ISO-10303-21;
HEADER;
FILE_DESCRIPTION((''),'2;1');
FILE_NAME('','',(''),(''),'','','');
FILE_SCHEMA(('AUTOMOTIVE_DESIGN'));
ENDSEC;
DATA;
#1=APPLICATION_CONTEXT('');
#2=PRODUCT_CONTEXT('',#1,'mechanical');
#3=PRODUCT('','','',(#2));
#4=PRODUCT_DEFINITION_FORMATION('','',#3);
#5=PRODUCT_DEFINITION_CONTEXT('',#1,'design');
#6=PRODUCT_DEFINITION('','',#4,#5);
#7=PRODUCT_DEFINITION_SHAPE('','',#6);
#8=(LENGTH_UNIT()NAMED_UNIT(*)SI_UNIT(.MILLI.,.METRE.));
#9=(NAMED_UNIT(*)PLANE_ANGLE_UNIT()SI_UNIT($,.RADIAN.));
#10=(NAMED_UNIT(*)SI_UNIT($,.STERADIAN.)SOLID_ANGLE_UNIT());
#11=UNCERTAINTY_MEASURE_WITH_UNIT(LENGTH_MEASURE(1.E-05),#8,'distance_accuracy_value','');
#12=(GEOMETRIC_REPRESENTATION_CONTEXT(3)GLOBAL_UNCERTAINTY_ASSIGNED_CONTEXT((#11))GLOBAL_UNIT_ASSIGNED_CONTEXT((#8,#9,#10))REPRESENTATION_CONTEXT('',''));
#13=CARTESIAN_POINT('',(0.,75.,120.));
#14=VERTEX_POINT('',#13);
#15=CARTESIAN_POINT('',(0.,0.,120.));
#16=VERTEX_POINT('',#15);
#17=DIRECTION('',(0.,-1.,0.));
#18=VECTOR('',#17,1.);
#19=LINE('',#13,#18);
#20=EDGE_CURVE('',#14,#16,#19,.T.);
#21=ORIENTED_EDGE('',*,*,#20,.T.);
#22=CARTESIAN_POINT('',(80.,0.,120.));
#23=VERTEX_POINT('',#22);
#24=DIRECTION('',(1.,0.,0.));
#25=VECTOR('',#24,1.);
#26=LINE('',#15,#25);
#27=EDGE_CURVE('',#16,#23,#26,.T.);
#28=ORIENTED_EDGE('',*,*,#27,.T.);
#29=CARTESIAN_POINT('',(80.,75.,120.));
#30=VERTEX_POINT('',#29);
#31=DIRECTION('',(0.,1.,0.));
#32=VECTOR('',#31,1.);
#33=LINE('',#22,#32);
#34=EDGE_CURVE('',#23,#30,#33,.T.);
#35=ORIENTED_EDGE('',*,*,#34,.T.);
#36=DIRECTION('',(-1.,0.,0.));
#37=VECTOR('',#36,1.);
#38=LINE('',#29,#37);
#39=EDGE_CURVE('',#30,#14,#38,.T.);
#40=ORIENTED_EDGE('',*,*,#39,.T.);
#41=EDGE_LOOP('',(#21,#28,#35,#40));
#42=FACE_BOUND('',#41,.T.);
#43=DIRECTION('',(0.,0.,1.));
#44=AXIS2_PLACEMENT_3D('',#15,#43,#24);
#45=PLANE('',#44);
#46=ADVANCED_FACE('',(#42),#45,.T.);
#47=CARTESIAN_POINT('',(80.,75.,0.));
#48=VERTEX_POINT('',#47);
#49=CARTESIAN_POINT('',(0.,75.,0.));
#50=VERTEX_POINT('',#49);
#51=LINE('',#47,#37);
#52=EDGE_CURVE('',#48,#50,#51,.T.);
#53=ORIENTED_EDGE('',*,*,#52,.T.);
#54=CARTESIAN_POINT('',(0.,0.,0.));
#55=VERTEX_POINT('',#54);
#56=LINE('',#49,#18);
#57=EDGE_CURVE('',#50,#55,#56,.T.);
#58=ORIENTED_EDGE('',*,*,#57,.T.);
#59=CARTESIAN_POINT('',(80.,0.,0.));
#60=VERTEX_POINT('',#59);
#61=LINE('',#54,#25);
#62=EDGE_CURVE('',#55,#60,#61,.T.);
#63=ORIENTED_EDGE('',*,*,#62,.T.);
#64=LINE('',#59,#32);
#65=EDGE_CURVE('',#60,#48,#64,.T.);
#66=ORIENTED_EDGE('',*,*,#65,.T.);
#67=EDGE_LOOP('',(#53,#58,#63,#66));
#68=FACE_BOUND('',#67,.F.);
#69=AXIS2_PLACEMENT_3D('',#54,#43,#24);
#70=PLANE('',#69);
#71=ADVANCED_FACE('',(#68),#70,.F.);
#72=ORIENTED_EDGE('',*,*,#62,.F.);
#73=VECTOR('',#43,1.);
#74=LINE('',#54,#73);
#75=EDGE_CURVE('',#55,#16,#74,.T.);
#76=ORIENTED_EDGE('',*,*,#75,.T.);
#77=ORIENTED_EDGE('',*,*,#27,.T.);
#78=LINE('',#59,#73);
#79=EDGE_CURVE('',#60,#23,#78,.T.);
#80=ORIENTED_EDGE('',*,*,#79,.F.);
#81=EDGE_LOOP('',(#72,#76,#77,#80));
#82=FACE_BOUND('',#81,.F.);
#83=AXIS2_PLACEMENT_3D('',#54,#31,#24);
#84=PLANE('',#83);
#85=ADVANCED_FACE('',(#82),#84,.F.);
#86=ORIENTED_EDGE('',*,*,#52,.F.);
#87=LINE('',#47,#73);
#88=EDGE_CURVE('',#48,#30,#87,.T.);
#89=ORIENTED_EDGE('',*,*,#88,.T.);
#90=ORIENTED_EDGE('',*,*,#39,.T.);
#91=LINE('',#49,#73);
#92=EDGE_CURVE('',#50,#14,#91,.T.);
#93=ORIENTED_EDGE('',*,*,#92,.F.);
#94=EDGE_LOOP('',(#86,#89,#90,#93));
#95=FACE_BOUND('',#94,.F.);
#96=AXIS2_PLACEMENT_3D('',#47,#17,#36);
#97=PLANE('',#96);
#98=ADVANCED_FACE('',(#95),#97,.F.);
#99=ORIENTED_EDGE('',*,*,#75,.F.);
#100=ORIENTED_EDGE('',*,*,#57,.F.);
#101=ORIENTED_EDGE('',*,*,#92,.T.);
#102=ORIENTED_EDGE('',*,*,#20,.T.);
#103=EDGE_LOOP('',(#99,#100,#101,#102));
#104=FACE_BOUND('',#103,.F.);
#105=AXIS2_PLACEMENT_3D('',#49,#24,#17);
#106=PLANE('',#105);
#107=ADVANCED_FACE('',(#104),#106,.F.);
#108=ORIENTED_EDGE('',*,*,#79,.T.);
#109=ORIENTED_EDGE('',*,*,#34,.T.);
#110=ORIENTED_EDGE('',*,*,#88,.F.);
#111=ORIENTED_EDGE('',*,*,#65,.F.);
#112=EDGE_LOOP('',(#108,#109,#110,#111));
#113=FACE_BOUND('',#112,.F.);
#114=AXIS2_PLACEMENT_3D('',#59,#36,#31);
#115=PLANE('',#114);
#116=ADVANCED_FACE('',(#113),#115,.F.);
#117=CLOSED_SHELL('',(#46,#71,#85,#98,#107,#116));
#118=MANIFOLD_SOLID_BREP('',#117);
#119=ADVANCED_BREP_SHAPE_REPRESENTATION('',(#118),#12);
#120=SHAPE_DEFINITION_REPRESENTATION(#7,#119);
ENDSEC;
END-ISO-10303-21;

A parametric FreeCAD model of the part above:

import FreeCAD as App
import Part
import Sketcher

V = App.Vector

doc = App.newDocument("Part")
params = doc.addObject("Spreadsheet::Sheet", "Params")
for row, (alias, value) in enumerate([
    ("sketch1_width", "80 mm"),
    ("sketch1_height", "75 mm"),
    ("pad1_length", "120 mm"),
], start=1):
    params.set(f"A{row}", alias)
    params.set(f"B{row}", "=" + value)
    params.setAlias(f"B{row}", alias)

body = doc.addObject("PartDesign::Body", "Body")

sketch1 = body.newObject("Sketcher::SketchObject", "Sketch")
sketch1.AttachmentSupport = (doc.getObject("XY_Plane"), [""])
sketch1.MapMode = "FlatFace"
sketch1.addGeometry([
    Part.LineSegment(V(0, 75, 0), V(0, 0, 0)),
    Part.LineSegment(V(0, 0, 0), V(80, 0, 0)),
    Part.LineSegment(V(80, 0, 0), V(80, 75, 0)),
    Part.LineSegment(V(80, 75, 0), V(0, 75, 0)),
], False)
sketch1.addConstraint([
    Sketcher.Constraint("Coincident", 0, 2, 1, 1),
    Sketcher.Constraint("Coincident", 1, 2, 2, 1),
    Sketcher.Constraint("Coincident", 2, 2, 3, 1),
    Sketcher.Constraint("Coincident", 3, 2, 0, 1),
    Sketcher.Constraint("Vertical", 0),
    Sketcher.Constraint("Horizontal", 1),
    Sketcher.Constraint("Vertical", 2),
    Sketcher.Constraint("Horizontal", 3),
    Sketcher.Constraint("Coincident", 0, 2, -1, 1),
    Sketcher.Constraint("DistanceX", 1, 1, 1, 2, 80.0),
    Sketcher.Constraint("DistanceY", 0, 2, 0, 1, 75.0),
])
sketch1.setExpression("Constraints[9]", "Params.sketch1_width")
sketch1.setExpression("Constraints[10]", "Params.sketch1_height")
pad1 = body.newObject("PartDesign::Pad", "Pad")
pad1.Profile = sketch1
pad1.setExpression("Length", "Params.pad1_length")

doc.recompute()
